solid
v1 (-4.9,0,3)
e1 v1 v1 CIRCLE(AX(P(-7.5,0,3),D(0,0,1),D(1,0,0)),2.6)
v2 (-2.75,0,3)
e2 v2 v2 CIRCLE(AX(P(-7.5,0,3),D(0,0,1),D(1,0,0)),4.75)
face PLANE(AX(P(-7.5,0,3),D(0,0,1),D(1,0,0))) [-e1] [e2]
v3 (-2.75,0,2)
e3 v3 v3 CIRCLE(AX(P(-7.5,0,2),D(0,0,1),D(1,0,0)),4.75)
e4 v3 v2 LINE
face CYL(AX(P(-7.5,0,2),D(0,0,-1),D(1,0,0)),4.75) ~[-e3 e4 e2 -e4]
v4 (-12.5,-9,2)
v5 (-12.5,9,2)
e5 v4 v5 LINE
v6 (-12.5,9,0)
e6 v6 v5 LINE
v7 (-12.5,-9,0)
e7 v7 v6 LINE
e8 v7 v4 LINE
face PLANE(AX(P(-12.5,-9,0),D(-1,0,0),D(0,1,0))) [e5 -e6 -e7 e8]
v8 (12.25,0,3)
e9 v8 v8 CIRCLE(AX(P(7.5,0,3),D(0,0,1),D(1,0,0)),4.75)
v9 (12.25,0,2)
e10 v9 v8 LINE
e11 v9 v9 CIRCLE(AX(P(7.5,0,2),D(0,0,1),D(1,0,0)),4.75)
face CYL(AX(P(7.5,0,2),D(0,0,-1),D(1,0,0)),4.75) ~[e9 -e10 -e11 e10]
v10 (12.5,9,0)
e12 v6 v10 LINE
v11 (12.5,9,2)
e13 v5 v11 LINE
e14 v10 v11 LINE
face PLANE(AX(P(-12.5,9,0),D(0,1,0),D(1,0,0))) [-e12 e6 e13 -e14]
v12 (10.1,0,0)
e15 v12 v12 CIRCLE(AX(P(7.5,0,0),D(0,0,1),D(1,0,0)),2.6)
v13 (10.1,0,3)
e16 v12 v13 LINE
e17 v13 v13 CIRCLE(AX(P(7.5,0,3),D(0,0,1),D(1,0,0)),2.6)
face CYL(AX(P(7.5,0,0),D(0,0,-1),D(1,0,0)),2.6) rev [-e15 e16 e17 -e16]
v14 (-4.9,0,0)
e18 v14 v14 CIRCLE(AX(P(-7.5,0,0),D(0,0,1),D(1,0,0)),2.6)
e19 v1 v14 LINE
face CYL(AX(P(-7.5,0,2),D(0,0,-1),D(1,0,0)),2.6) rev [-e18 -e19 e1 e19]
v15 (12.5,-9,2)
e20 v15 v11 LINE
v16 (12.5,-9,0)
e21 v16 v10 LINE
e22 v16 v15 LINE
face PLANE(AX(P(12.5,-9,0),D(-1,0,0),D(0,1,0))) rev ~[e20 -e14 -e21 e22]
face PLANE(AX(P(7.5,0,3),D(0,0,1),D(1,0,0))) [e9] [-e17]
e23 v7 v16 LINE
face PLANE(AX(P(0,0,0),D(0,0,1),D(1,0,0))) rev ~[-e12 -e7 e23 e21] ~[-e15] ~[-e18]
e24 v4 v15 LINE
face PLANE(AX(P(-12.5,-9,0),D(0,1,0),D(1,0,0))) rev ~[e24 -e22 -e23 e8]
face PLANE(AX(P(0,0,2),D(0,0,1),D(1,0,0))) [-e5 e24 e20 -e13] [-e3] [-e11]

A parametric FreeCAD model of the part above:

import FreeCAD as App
import Part
import Sketcher
Q = App.Units.Quantity

doc = App.newDocument("Part")
body = doc.addObject("PartDesign::Body", "Body")

# Sketch on XY plane
sketch1 = body.newObject("Sketcher::SketchObject", "Sketch")
sketch1.AttachmentSupport = (doc.getObject("XY_Plane"), [""])
sketch1.MapMode = "FlatFace"
sketch1.addGeometry(Part.LineSegment(App.Vector(-12.5, 9, 0), App.Vector(-12.5, -9, 0)), False)
sketch1.addGeometry(Part.LineSegment(App.Vector(-12.5, -9, 0), App.Vector(12.5, -9, 0)), False)
sketch1.addGeometry(Part.LineSegment(App.Vector(12.5, -9, 0), App.Vector(12.5, 9, 0)), False)
sketch1.addGeometry(Part.LineSegment(App.Vector(12.5, 9, 0), App.Vector(-12.5, 9, 0)), False)
sketch1.addGeometry(Part.Circle(App.Vector(-7.5, 0, 0), App.Vector(0, 0, 1), 2.6), False)
sketch1.addGeometry(Part.Circle(App.Vector(7.5, 0, 0), App.Vector(0, 0, 1), 2.6), False)
sketch1.addConstraint(Sketcher.Constraint("Coincident", 0, 2, 1, 1))
sketch1.addConstraint(Sketcher.Constraint("Coincident", 1, 2, 2, 1))
sketch1.addConstraint(Sketcher.Constraint("Coincident", 2, 2, 3, 1))
sketch1.addConstraint(Sketcher.Constraint("Coincident", 3, 2, 0, 1))
sketch1.addConstraint(Sketcher.Constraint("Vertical", 0))
sketch1.addConstraint(Sketcher.Constraint("Horizontal", 1))
sketch1.addConstraint(Sketcher.Constraint("Vertical", 2))
sketch1.addConstraint(Sketcher.Constraint("Horizontal", 3))
sketch1.addConstraint(Sketcher.Constraint("Equal", 4, 5))
sketch1.addConstraint(Sketcher.Constraint("Symmetric", 4, 3, 5, 3, -1, 1))
sketch1.addConstraint(Sketcher.Constraint("Symmetric", 0, 2, 2, 2, -1, 1))
sketch1.addConstraint(Sketcher.Constraint("PointOnObject", 4, 3, -1))
sketch1.addConstraint(Sketcher.Constraint("Diameter", 4, Q("5.2 mm")))
sketch1.addConstraint(Sketcher.Constraint("DistanceX", 1, 1, 1, 2, Q("25 mm")))
sketch1.addConstraint(Sketcher.Constraint("DistanceY", 0, 2, 0, 1, Q("18 mm")))
sketch1.addConstraint(Sketcher.Constraint("DistanceX", 4, 3, 5, 3, Q("15 mm")))
pad1 = body.newObject("PartDesign::Pad", "Pad")
pad1.Profile = sketch1
pad1.Length = 2

# Sketch on XY plane
sketch2 = body.newObject("Sketcher::SketchObject", "Sketch001")
sketch2.AttachmentSupport = (doc.getObject("XY_Plane"), [""])
sketch2.MapMode = "FlatFace"
sketch2.AttachmentOffset = App.Placement(App.Vector(0, 0, 2), App.Rotation())
sketch2.addGeometry(Part.Circle(App.Vector(-7.5, 0, 0), App.Vector(0, 0, 1), 4.8), False)
sketch2.addGeometry(Part.Circle(App.Vector(-7.5, 0, 0), App.Vector(0, 0, 1), 2.6), False)
sketch2.addGeometry(Part.Circle(App.Vector(7.5, 0, 0), App.Vector(0, 0, 1), 4.8), False)
sketch2.addGeometry(Part.Circle(App.Vector(7.5, 0, 0), App.Vector(0, 0, 1), 2.6), False)
sketch2.addConstraint(Sketcher.Constraint("Coincident", 1, 3, 0, 3))
sketch2.addConstraint(Sketcher.Constraint("Coincident", 3, 3, 2, 3))
sketch2.addConstraint(Sketcher.Constraint("Equal", 0, 2))
sketch2.addConstraint(Sketcher.Constraint("Equal", 1, 3))
sketch2.addConstraint(Sketcher.Constraint("Symmetric", 0, 3, 2, 3, -1, 1))
sketch2.addConstraint(Sketcher.Constraint("PointOnObject", 0, 3, -1))
sketch2.addConstraint(Sketcher.Constraint("Diameter", 0, Q("9.5 mm")))
sketch2.addConstraint(Sketcher.Constraint("Diameter", 1, Q("5.2 mm")))
sketch2.addConstraint(Sketcher.Constraint("DistanceX", 0, 3, 2, 3, Q("15 mm")))
pad2 = body.newObject("PartDesign::Pad", "Pad001")
pad2.Profile = sketch2
pad2.Length = 1

doc.recompute()
